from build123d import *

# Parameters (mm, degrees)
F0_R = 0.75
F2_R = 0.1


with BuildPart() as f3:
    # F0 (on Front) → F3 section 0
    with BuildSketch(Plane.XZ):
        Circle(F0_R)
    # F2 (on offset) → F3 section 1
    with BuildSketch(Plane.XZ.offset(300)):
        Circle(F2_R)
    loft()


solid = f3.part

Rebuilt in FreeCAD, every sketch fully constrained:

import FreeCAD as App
import Part
import Sketcher
from FreeCAD import Vector

doc = App.newDocument("Part")
body = doc.addObject("PartDesign::Body", "Body")

sketch1 = body.newObject("Sketcher::SketchObject", "Sketch")
sketch1.AttachmentSupport = (doc.getObject("XZ_Plane"), [""])
sketch1.MapMode = "FlatFace"
sketch1.addGeometry(Part.Circle(Vector(0, 0, 0), Vector(0, 0, 1), 0.75), False)
sketch1.addConstraint(Sketcher.Constraint("Coincident", 0, 3, -1, 1))
sketch1.addConstraint(Sketcher.Constraint("Diameter", 0, 1.5))

sketch2 = body.newObject("Sketcher::SketchObject", "Sketch001")
sketch2.AttachmentSupport = (doc.getObject("XZ_Plane"), [""])
sketch2.MapMode = "FlatFace"
sketch2.AttachmentOffset = App.Placement(Vector(0, 0, 300), App.Rotation())
sketch2.addGeometry(Part.Circle(Vector(0, 0, 0), Vector(0, 0, 1), 0.1), False)
sketch2.addConstraint(Sketcher.Constraint("Coincident", 0, 3, -1, 1))
sketch2.addConstraint(Sketcher.Constraint("Diameter", 0, 0.2))

additiveloft = body.newObject("PartDesign::AdditiveLoft", "AdditiveLoft")
additiveloft.Profile = sketch1
additiveloft.Sections = [sketch2]

doc.recompute()
